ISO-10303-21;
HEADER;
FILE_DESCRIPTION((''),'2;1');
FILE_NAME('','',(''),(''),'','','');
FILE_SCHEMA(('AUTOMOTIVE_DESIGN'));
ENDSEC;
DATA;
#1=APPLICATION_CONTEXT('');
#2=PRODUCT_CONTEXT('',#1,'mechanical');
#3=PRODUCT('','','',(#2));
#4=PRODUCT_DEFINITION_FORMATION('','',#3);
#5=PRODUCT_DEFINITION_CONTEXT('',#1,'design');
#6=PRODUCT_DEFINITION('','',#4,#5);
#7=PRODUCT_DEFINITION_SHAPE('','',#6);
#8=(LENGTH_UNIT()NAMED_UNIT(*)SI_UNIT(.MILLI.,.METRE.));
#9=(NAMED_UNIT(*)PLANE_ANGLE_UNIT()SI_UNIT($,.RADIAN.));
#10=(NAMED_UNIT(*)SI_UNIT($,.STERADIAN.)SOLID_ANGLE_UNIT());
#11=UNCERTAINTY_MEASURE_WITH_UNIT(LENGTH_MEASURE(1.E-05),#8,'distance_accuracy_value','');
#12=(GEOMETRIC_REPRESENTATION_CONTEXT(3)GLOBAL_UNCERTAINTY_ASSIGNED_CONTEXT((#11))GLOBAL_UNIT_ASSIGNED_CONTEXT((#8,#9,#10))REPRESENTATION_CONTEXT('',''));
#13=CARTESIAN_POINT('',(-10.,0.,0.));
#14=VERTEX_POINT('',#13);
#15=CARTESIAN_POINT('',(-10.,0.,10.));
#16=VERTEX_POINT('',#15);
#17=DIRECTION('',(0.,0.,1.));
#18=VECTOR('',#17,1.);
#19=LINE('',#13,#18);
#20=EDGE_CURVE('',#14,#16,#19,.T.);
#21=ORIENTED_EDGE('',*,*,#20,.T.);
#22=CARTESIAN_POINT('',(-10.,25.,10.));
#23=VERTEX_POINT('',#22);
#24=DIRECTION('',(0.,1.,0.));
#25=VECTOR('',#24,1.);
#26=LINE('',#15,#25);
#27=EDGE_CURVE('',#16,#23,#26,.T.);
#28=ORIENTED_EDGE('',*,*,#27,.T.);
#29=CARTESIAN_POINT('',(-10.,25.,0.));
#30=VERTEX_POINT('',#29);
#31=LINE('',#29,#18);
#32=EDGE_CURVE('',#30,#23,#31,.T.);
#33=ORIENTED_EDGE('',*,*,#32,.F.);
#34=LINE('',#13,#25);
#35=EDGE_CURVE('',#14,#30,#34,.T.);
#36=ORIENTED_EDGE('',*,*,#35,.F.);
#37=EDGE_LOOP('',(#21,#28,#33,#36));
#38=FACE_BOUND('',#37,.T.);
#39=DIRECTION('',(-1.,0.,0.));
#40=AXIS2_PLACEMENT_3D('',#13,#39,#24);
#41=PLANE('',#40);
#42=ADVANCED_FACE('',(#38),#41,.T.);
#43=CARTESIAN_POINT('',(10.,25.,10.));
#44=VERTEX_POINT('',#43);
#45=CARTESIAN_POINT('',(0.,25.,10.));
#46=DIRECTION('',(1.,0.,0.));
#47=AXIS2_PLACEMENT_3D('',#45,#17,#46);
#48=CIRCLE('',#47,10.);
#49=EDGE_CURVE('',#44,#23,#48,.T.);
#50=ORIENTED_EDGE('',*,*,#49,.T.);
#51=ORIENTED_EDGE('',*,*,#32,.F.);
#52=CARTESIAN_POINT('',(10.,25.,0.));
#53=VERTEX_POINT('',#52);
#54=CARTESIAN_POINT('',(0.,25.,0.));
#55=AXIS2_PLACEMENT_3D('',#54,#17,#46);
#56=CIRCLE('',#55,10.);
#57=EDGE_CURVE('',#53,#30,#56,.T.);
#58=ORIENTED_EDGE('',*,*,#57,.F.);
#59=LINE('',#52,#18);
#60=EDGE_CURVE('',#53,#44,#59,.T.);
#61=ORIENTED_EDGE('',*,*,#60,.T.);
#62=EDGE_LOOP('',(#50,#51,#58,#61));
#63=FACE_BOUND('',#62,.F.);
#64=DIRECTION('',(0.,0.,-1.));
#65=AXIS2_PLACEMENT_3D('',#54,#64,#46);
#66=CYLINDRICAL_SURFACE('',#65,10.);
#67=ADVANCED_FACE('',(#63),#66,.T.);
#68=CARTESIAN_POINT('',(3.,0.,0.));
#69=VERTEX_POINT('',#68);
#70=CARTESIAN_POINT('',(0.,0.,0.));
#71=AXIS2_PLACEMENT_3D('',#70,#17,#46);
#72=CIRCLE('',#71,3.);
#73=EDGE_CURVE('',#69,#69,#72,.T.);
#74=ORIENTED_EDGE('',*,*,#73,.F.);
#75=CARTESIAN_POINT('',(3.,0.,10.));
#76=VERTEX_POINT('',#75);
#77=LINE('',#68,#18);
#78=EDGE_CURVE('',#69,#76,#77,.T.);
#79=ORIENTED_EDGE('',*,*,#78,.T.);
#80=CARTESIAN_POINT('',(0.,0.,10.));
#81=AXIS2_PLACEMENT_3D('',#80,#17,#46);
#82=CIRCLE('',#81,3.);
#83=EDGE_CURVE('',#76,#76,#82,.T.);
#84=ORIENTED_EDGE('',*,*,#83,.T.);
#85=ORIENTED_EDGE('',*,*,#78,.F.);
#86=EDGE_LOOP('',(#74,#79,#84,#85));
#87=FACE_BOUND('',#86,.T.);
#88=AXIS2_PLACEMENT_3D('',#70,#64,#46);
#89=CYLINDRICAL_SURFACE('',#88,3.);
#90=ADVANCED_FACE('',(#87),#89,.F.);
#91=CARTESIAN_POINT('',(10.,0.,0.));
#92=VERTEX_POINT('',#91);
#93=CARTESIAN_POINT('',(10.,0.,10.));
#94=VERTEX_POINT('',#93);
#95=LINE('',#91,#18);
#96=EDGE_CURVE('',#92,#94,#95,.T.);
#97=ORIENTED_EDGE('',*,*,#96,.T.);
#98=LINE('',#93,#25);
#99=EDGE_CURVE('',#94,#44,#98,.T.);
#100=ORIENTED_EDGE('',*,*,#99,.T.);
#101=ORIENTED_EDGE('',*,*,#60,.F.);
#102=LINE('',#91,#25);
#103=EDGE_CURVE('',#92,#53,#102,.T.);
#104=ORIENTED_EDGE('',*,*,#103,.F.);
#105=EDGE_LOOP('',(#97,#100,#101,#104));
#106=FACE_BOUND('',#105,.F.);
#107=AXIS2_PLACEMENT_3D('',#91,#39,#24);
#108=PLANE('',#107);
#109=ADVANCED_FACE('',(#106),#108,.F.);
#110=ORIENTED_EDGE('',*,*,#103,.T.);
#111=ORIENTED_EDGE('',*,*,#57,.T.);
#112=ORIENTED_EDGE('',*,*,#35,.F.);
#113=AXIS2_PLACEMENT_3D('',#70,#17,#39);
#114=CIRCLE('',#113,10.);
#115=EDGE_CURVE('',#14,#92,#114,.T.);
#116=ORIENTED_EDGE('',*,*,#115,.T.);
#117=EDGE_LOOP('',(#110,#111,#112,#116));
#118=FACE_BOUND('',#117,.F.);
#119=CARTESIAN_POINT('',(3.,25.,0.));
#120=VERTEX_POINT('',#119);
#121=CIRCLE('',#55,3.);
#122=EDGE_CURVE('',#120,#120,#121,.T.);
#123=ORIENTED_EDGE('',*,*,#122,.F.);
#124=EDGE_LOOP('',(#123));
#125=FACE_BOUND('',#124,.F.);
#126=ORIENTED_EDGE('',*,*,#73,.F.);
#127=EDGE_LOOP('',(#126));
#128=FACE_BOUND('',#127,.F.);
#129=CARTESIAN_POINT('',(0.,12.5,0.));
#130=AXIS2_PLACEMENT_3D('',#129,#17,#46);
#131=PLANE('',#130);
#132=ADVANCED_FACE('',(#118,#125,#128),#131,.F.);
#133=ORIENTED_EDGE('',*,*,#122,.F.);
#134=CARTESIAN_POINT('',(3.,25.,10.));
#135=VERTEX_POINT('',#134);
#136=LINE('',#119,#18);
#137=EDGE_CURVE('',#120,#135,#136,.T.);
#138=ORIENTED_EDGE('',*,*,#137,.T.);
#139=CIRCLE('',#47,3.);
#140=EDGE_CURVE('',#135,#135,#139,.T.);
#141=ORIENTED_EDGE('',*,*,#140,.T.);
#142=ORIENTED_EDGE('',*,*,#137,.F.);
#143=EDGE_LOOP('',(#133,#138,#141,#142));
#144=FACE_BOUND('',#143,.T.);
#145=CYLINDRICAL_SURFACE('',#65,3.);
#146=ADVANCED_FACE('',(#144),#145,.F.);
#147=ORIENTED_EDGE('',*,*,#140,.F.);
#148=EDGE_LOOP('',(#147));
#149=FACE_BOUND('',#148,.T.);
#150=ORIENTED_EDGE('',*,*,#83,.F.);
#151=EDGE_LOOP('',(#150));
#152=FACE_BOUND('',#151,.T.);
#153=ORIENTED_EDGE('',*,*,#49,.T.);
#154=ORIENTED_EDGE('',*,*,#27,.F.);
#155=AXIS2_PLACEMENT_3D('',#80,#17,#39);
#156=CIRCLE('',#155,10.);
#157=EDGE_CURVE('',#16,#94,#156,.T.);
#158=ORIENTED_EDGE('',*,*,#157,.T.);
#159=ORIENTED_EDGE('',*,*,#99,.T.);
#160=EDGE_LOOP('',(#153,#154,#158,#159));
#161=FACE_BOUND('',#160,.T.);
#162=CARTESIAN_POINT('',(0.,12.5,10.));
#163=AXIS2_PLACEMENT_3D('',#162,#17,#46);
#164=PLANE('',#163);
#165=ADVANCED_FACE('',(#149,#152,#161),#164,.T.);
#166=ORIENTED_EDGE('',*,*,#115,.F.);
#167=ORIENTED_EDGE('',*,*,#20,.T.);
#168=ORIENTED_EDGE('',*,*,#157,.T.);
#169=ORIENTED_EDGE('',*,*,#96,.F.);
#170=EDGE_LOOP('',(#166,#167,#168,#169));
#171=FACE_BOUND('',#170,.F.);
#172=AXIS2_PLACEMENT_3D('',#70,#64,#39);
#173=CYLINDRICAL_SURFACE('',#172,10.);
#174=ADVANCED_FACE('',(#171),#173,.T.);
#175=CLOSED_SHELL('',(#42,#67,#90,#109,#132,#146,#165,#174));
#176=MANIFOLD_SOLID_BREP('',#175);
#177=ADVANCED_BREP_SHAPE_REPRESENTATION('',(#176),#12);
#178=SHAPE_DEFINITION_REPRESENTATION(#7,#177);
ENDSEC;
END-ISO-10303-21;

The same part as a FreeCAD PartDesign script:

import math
import FreeCAD as App
import Part
import Sketcher
from FreeCAD import Vector

doc = App.newDocument("Part")
body = doc.addObject("PartDesign::Body", "Body")

# Sketch on XY plane
sketch1 = body.newObject("Sketcher::SketchObject", "Sketch")
sketch1.AttachmentSupport = (doc.getObject("XY_Plane"), [""])
sketch1.MapMode = "FlatFace"
sketch1.addGeometry([
    Part.ArcOfCircle(Part.Circle(Vector(0, 0, 0), Vector(0, 0, 1), 10), math.radians(180), math.radians(360)),  # 0
    Part.LineSegment(Vector(10, 0, 0), Vector(10, 25, 0)),  # 1
    Part.ArcOfCircle(Part.Circle(Vector(0, 25, 0), Vector(0, 0, 1), 10), math.radians(0), math.radians(180)),  # 2
    Part.LineSegment(Vector(-10, 25, 0), Vector(-10, 0, 0)),  # 3
    Part.Circle(Vector(0, 0, 0), Vector(0, 0, 1), 3),  # 4
    Part.Circle(Vector(0, 25, 0), Vector(0, 0, 1), 3),  # 5
], False)
sketch1.addConstraint([
    Sketcher.Constraint("Tangent", 0, 2, 1, 1),
    Sketcher.Constraint("Tangent", 1, 2, 2, 1),
    Sketcher.Constraint("Tangent", 2, 2, 3, 1),
    Sketcher.Constraint("Tangent", 3, 2, 0, 1),
    Sketcher.Constraint("Vertical", 1),
    Sketcher.Constraint("Vertical", 3),
    Sketcher.Constraint("Coincident", 0, 3, -1, 1),
    Sketcher.Constraint("Coincident", 4, 3, -1, 1),
    Sketcher.Constraint("Coincident", 5, 3, 2, 3),
    Sketcher.Constraint("Equal", 4, 5),
    Sketcher.Constraint("Diameter", 4, 6.0),
    Sketcher.Constraint("Radius", 0, 10.0),
    Sketcher.Constraint("DistanceY", 1, 1, 1, 2, 25.0),
])
pad1 = body.newObject("PartDesign::Pad", "Pad")
pad1.Profile = sketch1
pad1.Length = 10

doc.recompute()
